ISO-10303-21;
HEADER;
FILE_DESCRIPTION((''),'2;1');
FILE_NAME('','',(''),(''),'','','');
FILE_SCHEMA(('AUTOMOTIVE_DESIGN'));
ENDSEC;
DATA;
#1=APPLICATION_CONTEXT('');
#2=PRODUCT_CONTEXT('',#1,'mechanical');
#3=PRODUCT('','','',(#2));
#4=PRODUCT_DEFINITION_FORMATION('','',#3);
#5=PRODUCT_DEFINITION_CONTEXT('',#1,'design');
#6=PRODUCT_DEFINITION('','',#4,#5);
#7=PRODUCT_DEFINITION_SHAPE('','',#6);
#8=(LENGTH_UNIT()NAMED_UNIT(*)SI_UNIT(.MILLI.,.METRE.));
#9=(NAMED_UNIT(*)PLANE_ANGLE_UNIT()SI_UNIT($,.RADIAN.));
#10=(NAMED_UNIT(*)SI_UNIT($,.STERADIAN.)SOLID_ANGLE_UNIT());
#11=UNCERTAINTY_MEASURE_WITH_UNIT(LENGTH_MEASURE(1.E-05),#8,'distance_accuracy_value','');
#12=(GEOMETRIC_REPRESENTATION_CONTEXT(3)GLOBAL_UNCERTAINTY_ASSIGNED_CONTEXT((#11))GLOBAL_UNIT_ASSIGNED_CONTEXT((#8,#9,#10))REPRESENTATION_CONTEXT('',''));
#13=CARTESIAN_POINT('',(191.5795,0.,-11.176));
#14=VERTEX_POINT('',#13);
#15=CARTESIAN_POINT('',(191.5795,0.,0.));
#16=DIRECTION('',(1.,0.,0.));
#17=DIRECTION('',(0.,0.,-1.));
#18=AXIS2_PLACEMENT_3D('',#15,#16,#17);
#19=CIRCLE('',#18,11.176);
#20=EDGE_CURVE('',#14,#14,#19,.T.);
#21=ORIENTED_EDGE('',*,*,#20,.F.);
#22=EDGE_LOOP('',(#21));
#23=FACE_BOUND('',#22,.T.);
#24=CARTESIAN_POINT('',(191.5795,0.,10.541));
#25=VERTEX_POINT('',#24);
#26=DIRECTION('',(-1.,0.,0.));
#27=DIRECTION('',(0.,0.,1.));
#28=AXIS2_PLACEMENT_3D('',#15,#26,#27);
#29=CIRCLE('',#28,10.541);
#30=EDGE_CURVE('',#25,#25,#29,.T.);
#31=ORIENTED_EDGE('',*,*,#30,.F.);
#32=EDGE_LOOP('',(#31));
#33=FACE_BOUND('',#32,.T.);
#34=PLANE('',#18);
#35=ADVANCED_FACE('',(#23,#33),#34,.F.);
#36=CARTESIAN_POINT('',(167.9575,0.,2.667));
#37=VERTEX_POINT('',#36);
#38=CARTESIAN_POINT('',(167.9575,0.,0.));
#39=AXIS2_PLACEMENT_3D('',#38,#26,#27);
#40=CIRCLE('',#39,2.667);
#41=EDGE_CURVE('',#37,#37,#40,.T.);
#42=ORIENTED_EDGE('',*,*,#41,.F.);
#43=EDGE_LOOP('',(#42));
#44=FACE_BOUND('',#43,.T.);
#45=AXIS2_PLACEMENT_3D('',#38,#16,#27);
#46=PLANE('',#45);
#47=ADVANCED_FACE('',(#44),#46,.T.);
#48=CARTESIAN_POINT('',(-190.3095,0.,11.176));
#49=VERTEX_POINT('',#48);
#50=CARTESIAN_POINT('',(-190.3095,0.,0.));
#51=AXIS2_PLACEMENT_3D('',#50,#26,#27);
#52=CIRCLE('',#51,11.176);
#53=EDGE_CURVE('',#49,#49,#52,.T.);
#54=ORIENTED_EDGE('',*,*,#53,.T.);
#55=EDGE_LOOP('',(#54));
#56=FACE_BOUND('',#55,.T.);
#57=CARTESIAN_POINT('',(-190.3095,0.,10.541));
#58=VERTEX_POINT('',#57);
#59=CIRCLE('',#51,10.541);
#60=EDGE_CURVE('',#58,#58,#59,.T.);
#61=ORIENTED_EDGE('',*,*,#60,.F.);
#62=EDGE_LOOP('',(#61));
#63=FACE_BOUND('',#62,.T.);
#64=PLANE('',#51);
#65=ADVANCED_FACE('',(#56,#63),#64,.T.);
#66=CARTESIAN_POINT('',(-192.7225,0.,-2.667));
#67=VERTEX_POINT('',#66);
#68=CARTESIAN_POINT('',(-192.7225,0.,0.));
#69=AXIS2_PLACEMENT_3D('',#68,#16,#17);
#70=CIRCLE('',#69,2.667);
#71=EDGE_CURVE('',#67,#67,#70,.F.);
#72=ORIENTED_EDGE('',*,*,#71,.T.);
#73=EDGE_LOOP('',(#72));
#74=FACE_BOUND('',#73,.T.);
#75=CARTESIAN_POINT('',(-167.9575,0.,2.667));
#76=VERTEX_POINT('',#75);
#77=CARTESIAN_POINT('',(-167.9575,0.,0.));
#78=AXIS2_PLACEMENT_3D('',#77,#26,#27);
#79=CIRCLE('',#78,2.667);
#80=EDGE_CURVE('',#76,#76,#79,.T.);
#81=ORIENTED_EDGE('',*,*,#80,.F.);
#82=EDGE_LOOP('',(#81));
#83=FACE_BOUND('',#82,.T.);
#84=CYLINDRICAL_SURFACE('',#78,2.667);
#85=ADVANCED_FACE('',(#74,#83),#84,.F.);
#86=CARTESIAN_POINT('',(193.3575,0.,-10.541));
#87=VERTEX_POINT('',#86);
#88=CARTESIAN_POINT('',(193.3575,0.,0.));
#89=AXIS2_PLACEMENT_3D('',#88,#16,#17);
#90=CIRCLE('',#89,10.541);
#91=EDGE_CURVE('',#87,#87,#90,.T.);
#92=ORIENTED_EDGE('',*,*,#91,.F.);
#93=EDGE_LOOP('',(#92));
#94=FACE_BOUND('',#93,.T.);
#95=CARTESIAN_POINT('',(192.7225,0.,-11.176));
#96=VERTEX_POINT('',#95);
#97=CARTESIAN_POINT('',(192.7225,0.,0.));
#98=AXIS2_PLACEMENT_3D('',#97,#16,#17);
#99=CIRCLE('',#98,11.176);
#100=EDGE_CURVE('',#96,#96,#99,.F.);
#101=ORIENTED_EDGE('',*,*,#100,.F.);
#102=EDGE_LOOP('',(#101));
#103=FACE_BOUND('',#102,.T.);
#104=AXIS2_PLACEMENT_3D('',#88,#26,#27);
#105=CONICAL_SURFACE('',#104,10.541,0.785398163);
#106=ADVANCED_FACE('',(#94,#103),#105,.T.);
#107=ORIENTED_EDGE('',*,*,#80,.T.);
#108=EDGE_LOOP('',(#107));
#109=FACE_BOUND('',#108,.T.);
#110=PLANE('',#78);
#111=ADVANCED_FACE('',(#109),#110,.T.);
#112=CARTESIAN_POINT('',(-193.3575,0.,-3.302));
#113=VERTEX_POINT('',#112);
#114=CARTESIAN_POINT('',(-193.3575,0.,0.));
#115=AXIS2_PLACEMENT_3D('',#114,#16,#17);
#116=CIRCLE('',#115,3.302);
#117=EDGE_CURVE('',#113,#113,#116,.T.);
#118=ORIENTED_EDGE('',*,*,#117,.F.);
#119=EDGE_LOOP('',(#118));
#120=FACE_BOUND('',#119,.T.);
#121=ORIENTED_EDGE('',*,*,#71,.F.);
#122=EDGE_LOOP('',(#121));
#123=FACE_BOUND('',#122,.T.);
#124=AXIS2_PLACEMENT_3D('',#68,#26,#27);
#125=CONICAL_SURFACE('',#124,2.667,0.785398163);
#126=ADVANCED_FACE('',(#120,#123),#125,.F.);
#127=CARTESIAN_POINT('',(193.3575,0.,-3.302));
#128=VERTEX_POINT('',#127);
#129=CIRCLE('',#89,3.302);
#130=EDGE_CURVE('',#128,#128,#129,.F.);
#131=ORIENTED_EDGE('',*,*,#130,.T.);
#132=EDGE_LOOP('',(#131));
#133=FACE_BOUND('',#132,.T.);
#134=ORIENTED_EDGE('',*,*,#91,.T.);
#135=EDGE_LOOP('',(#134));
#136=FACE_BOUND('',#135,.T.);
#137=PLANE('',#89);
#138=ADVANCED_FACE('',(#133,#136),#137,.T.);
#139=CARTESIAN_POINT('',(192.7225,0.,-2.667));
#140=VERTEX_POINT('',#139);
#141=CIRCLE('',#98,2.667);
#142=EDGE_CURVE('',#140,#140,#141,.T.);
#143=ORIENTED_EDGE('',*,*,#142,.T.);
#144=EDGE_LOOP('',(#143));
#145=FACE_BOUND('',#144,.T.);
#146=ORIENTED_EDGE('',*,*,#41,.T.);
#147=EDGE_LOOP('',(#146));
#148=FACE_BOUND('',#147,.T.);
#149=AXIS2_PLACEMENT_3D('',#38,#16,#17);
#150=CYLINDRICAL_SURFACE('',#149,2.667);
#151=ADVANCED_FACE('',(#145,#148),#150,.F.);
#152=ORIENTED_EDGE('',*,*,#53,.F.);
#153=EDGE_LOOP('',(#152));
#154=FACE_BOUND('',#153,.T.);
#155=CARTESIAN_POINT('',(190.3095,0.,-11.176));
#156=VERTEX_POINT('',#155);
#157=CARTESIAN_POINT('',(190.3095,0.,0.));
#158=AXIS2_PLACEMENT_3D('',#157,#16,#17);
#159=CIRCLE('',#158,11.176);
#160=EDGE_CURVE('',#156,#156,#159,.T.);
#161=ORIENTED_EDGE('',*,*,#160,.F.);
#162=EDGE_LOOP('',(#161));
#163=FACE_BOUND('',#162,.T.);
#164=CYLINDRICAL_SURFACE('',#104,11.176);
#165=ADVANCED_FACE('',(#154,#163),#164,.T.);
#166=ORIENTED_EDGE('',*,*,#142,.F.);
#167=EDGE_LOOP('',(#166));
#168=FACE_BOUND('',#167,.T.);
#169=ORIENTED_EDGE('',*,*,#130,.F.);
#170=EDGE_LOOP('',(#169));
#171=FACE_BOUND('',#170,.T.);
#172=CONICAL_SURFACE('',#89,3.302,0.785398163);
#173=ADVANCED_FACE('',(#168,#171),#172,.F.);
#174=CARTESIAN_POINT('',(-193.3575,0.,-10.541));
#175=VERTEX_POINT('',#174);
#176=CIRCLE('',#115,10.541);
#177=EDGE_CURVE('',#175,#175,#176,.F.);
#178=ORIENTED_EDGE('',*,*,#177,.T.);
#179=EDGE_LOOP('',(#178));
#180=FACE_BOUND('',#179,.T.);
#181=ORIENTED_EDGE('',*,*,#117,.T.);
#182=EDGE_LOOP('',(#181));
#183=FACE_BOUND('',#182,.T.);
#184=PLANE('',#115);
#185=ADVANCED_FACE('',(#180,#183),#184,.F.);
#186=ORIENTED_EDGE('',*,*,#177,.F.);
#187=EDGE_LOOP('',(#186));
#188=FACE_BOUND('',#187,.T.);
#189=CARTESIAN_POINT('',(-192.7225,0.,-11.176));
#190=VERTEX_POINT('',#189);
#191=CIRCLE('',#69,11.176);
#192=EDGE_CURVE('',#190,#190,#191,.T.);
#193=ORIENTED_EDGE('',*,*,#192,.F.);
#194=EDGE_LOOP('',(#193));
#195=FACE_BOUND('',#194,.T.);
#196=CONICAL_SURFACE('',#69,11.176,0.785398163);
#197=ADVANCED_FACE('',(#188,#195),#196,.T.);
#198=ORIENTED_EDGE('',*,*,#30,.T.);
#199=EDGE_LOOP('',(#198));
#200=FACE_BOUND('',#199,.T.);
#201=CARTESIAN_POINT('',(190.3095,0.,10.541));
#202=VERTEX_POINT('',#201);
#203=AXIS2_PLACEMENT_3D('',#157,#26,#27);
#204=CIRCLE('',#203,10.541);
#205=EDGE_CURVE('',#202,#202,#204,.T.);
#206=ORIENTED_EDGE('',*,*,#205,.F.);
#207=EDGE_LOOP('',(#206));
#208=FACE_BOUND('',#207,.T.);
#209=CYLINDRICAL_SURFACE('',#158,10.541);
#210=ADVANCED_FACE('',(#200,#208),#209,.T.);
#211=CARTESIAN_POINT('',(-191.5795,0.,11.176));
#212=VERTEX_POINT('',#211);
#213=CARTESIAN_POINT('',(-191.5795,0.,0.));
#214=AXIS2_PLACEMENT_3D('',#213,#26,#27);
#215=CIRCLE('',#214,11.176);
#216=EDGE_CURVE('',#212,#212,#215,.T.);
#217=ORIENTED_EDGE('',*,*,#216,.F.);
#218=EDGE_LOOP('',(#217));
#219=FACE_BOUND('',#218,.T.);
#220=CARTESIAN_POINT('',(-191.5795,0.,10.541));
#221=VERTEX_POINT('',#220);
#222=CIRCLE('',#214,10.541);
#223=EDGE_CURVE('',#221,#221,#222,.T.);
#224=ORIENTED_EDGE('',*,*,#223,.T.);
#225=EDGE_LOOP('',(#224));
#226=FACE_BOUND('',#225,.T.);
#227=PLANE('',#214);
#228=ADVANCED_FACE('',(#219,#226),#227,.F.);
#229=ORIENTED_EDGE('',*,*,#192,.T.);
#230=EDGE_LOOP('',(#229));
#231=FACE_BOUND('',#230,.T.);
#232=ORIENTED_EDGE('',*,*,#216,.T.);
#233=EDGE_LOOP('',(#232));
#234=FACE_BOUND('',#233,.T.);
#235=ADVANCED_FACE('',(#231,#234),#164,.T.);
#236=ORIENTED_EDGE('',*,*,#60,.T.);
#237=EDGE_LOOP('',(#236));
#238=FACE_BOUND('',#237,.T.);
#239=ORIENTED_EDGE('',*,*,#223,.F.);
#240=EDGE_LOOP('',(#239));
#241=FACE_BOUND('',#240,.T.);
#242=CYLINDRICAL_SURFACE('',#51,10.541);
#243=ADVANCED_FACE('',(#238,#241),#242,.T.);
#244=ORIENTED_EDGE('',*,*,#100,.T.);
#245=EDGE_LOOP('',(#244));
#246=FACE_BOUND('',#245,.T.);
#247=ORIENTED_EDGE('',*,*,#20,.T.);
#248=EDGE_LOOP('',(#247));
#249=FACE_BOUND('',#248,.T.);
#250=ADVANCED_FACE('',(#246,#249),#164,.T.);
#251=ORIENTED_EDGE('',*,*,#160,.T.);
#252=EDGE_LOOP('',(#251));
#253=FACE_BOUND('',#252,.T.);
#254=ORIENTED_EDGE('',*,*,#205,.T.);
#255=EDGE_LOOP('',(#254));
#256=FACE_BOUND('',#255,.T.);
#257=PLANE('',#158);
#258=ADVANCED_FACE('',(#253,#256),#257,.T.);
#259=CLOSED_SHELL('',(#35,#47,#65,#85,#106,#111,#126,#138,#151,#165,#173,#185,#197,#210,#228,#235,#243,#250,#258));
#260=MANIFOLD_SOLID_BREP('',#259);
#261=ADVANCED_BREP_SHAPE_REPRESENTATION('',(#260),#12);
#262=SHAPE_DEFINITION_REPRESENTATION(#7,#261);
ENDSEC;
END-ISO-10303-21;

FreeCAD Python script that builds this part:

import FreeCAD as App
import Part
import Sketcher
Q = App.Units.Quantity


def edges_at(feature, points):
    """Names of the edges that pass closest to the given points."""
    edges = feature.Shape.Edges
    near = lambda p: min(range(len(edges)), key=lambda i: edges[i].distToShape(Part.Vertex(*p))[0])
    return sorted({f"Edge{near(p) + 1}" for p in points})

doc = App.newDocument("Part")
body = doc.addObject("PartDesign::Body", "Body")

# Sketch on YZ plane
sketch1 = doc.addObject("Sketcher::SketchObject", "Sketch")
body.addObject(sketch1)
sketch1.AttachmentSupport = (doc.YZ_Plane, [""])
sketch1.MapMode = "FlatFace"
sketch1.addGeometry(Part.Circle(App.Vector(0, 0, 0), App.Vector(0, 0, 1), 11), False)
sketch1.addConstraint([
    Sketcher.Constraint("Coincident", 0, 3, -1, 1),
    Sketcher.Constraint("Diameter", 0, Q("0.88 in")),
])
pad1 = doc.addObject("PartDesign::Pad", "Pad")
body.addObject(pad1)
pad1.Profile = sketch1
pad1.Length = Q("15.225 in")
pad1.Midplane = True

# Sketch on YZ plane
sketch2 = doc.addObject("Sketcher::SketchObject", "Sketch001")
body.addObject(sketch2)
sketch2.AttachmentSupport = (doc.YZ_Plane, [""])
sketch2.MapMode = "FlatFace"
sketch2.AttachmentOffset = App.Placement(App.Vector(0, 0, -7.5425 * 25.4), App.Rotation())
sketch2.addGeometry([
    Part.LineSegment(App.Vector(51, -51, 0), App.Vector(-51, -51, 0)),  # 0
    Part.LineSegment(App.Vector(-51, -51, 0), App.Vector(-51, 51, 0)),  # 1
    Part.LineSegment(App.Vector(-51, 51, 0), App.Vector(51, 51, 0)),  # 2
    Part.LineSegment(App.Vector(51, 51, 0), App.Vector(51, -51, 0)),  # 3
    Part.Circle(App.Vector(0, 0, 0), App.Vector(0, 0, 1), 11),  # 4
], False)
sketch2.addConstraint([
    Sketcher.Constraint("Coincident", 0, 2, 1, 1),
    Sketcher.Constraint("Coincident", 1, 2, 2, 1),
    Sketcher.Constraint("Coincident", 2, 2, 3, 1),
    Sketcher.Constraint("Coincident", 3, 2, 0, 1),
    Sketcher.Constraint("Horizontal", 0),
    Sketcher.Constraint("Vertical", 1),
    Sketcher.Constraint("Horizontal", 2),
    Sketcher.Constraint("Vertical", 3),
    Sketcher.Constraint("Coincident", 4, 3, -1, 1),
    Sketcher.Constraint("Symmetric", 0, 2, 2, 2, -1, 1),
    Sketcher.Constraint("Equal", 2, 1),
    Sketcher.Constraint("Diameter", 4, Q("0.83 in")),
    Sketcher.Constraint("DistanceX", 0, 2, 0, 1, 101.952),
])
pocket1 = doc.addObject("PartDesign::Pocket", "Pocket")
body.addObject(pocket1)
pocket1.Profile = sketch2
pocket1.Length = Q("0.05 in")
pocket1.Reversed = True

# Sketch on YZ plane
sketch3 = doc.addObject("Sketcher::SketchObject", "Sketch002")
body.addObject(sketch3)
sketch3.AttachmentSupport = (doc.YZ_Plane, [""])
sketch3.MapMode = "FlatFace"
sketch3.AttachmentOffset = App.Placement(App.Vector(0, 0, -7.6125 * 25.4), App.Rotation())
sketch3.addGeometry(Part.Circle(App.Vector(0, 0, 0), App.Vector(0, 0, 1), 2.7), False)
sketch3.addConstraint([
    Sketcher.Constraint("Coincident", 0, 3, -1, 1),
    Sketcher.Constraint("Diameter", 0, Q("0.21 in")),
])
pocket2 = doc.addObject("PartDesign::Pocket", "Pocket001")
body.addObject(pocket2)
pocket2.Profile = sketch3
pocket2.Length = Q("1 in")
pocket2.Reversed = True
doc.recompute()

mirrored = doc.addObject("PartDesign::Mirrored", "Mirrored")
body.addObject(mirrored)
mirrored.Originals = [pocket1, pocket2]
mirrored.MirrorPlane = (doc.YZ_Plane, [""])
body.Tip = mirrored
doc.recompute()

chamfer = doc.addObject("PartDesign::Chamfer", "Chamfer")
body.addObject(chamfer)
chamfer.Base = (mirrored, edges_at(mirrored, [
    (-193.357, 0, 11.176),
    (-193.357, 0, -2.667),
    (193.357, 0, 11.176),
    (193.357, 0, -2.667),
]))
chamfer.Size = Q("0.025 in")

doc.recompute()
